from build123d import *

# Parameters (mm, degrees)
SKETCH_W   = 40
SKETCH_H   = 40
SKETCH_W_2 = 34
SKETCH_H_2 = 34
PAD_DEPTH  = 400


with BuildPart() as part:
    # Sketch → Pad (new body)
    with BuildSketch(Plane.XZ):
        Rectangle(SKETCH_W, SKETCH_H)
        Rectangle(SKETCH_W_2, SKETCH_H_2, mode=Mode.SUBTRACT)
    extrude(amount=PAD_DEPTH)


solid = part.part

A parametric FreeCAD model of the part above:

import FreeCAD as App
import Part
import Sketcher
from FreeCAD import Vector
Q = App.Units.Quantity


def add_polygon(sketch, points):
    """Adds a closed chain of lines whose ends are joined by coincident constraints."""
    first, n = sketch.GeometryCount, len(points)
    for a, b in zip(points, points[1:] + points[:1]):
        sketch.addGeometry(Part.LineSegment(App.Vector(*a, 0), App.Vector(*b, 0)), False)
    for i in range(n):
        sketch.addConstraint(Sketcher.Constraint("Coincident", first + i, 2, first + (i + 1) % n, 1))

doc = App.newDocument("Part")
body = doc.addObject("PartDesign::Body", "Body")

sketch1 = doc.addObject("Sketcher::SketchObject", "Sketch")
body.addObject(sketch1)
sketch1.AttachmentSupport = (doc.XZ_Plane, [""])
sketch1.MapMode = "FlatFace"
add_polygon(sketch1, [(-20, 20), (-20, -20), (20, -20), (20, 20)])
add_polygon(sketch1, [(17, -17), (-17, -17), (-17, 17), (17, 17)])
sketch1.addConstraint(Sketcher.Constraint("Vertical", 0))
sketch1.addConstraint(Sketcher.Constraint("Horizontal", 1))
sketch1.addConstraint(Sketcher.Constraint("Vertical", 2))
sketch1.addConstraint(Sketcher.Constraint("Horizontal", 3))
sketch1.addConstraint(Sketcher.Constraint("Horizontal", 4))
sketch1.addConstraint(Sketcher.Constraint("Vertical", 5))
sketch1.addConstraint(Sketcher.Constraint("Horizontal", 6))
sketch1.addConstraint(Sketcher.Constraint("Vertical", 7))
sketch1.addConstraint(Sketcher.Constraint("Symmetric", 0, 2, 2, 2, -1, 1))
sketch1.addConstraint(Sketcher.Constraint("Symmetric", 4, 2, 6, 2, -1, 1))
sketch1.addConstraint(Sketcher.Constraint("Equal", 3, 0))
sketch1.addConstraint(Sketcher.Constraint("Equal", 6, 5))
sketch1.addConstraint(Sketcher.Constraint("DistanceX", 1, 1, 1, 2, Q("40 mm")))
sketch1.addConstraint(Sketcher.Constraint("DistanceX", 4, 2, 4, 1, Q("34 mm")))
pad1 = doc.addObject("PartDesign::Pad", "Pad")
body.addObject(pad1)
pad1.Profile = sketch1
pad1.Length = 400

doc.recompute()
